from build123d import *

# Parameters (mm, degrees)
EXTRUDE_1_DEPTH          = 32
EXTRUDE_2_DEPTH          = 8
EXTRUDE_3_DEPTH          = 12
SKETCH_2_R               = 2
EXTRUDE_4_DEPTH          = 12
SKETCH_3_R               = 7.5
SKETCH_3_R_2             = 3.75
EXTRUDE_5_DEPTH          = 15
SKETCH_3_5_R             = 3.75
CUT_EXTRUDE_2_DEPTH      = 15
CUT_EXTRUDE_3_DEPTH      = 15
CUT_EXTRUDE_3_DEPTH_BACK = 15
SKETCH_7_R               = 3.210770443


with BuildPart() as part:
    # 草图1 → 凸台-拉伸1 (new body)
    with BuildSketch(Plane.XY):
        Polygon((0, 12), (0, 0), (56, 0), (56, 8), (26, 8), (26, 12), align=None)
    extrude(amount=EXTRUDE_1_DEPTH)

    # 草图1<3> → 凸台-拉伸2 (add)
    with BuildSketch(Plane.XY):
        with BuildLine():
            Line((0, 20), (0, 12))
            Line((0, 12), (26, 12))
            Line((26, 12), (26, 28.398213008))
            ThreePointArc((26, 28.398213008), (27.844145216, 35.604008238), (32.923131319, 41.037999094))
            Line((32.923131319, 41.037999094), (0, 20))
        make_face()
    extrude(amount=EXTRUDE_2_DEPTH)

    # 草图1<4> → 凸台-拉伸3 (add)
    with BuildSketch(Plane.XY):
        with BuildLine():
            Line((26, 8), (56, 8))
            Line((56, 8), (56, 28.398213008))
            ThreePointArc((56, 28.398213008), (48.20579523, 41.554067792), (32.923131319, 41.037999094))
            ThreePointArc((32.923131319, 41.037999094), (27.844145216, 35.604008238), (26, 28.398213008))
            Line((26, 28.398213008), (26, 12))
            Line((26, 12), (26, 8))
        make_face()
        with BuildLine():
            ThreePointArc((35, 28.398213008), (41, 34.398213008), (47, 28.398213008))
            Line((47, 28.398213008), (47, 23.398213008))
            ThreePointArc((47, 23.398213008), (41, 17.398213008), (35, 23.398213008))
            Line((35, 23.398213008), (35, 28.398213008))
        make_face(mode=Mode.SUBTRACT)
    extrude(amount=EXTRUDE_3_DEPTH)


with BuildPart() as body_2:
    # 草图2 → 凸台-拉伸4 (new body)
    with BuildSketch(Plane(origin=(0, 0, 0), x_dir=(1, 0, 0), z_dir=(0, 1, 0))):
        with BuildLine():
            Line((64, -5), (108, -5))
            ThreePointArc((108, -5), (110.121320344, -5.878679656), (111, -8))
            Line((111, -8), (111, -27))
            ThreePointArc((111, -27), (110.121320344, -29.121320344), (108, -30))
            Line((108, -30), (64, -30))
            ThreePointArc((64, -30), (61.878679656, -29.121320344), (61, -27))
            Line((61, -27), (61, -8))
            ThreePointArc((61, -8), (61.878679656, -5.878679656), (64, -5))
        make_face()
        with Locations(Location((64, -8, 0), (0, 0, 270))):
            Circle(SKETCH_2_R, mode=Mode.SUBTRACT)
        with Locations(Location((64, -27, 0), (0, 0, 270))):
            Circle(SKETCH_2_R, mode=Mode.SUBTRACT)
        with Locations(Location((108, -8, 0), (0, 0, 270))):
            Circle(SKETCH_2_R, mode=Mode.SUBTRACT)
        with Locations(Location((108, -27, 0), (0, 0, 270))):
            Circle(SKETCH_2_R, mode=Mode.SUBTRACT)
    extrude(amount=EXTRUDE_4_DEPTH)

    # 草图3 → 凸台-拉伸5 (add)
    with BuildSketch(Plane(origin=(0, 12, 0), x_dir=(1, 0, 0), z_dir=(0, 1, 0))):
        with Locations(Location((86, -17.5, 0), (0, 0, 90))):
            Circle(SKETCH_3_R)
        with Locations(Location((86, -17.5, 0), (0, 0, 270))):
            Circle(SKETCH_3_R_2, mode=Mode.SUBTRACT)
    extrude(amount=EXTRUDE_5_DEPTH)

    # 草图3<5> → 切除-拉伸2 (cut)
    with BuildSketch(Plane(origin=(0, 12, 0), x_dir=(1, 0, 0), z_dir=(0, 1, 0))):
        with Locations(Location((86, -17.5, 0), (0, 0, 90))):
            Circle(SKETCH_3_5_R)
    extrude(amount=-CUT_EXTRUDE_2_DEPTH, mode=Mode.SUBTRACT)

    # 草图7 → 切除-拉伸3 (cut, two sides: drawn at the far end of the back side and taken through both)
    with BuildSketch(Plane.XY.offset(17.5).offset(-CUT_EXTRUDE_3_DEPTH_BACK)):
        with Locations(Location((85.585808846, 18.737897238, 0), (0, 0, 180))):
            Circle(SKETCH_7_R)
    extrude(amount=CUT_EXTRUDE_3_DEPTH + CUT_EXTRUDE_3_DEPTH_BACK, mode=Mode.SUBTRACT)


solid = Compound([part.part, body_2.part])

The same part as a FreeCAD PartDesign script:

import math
import FreeCAD as App
import Part
import Sketcher

doc = App.newDocument("Part")
params = doc.addObject("Spreadsheet::Sheet", "Params")
for row, (alias, value) in enumerate([
    ("sketch1_width", "56 mm"),
    ("sketch1_width2", "30 mm"),
    ("sketch1_height", "12 mm"),
    ("sketch1_height2", "8 mm"),
    ("pad1_length", "32 mm"),
    ("sketch2_radius", "15 mm"),
    ("sketch2_width", "26 mm"),
    ("sketch2_height", "8 mm"),
    ("pad2_length", "8 mm"),
    ("sketch3_radius", "15 mm"),
    ("sketch3_radius2", "6 mm"),
    ("sketch3_height", "5 mm"),
    ("pad3_length", "12 mm"),
    ("sketch4_diameter", "4 mm"),
    ("sketch4_radius", "3 mm"),
    ("sketch4_width", "44 mm"),
    ("sketch4_height", "19 mm"),
    ("pad4_length", "12 mm"),
    ("sketch5_diameter", "15 mm"),
    ("sketch5_diameter2", "7.5 mm"),
    ("pad5_length", "15 mm"),
    ("sketch6_diameter", "7.5 mm"),
    ("pocket1_length", "15 mm"),
], start=1):
    params.set(f"A{row}", alias)
    params.set(f"B{row}", "=" + value)
    params.setAlias(f"B{row}", alias)

body = doc.addObject("PartDesign::Body", "Body")

# Sketch on XY plane
sketch1 = doc.addObject("Sketcher::SketchObject", "Sketch")
body.addObject(sketch1)
sketch1.AttachmentSupport = (doc.XY_Plane, [""])
sketch1.MapMode = "FlatFace"
sketch1.addGeometry([
    Part.LineSegment(App.Vector(0, 12, 0), App.Vector(0, 0, 0)),  # 0
    Part.LineSegment(App.Vector(0, 0, 0), App.Vector(56, 0, 0)),  # 1
    Part.LineSegment(App.Vector(56, 0, 0), App.Vector(56, 8, 0)),  # 2
    Part.LineSegment(App.Vector(56, 8, 0), App.Vector(26, 8, 0)),  # 3
    Part.LineSegment(App.Vector(26, 8, 0), App.Vector(26, 12, 0)),  # 4
    Part.LineSegment(App.Vector(26, 12, 0), App.Vector(0, 12, 0)),  # 5
], False)
sketch1.addConstraint([
    Sketcher.Constraint("Coincident", 0, 2, 1, 1),
    Sketcher.Constraint("Coincident", 1, 2, 2, 1),
    Sketcher.Constraint("Coincident", 2, 2, 3, 1),
    Sketcher.Constraint("Coincident", 3, 2, 4, 1),
    Sketcher.Constraint("Coincident", 4, 2, 5, 1),
    Sketcher.Constraint("Coincident", 5, 2, 0, 1),
    Sketcher.Constraint("Vertical", 0),
    Sketcher.Constraint("Horizontal", 1),
    Sketcher.Constraint("Vertical", 2),
    Sketcher.Constraint("Horizontal", 3),
    Sketcher.Constraint("Vertical", 4),
    Sketcher.Constraint("Horizontal", 5),
    Sketcher.Constraint("Coincident", 0, 2, -1, 1),
    Sketcher.Constraint("DistanceX", 1, 1, 1, 2, 56.0),
    Sketcher.Constraint("DistanceX", 3, 2, 3, 1, 30.0),
    Sketcher.Constraint("DistanceY", 0, 2, 0, 1, 12.0),
    Sketcher.Constraint("DistanceY", 2, 1, 2, 2, 8.0),
])
sketch1.setExpression("Constraints[13]", "Params.sketch1_width")
sketch1.setExpression("Constraints[14]", "Params.sketch1_width2")
sketch1.setExpression("Constraints[15]", "Params.sketch1_height")
sketch1.setExpression("Constraints[16]", "Params.sketch1_height2")
pad1 = doc.addObject("PartDesign::Pad", "Pad")
body.addObject(pad1)
pad1.Profile = sketch1
pad1.setExpression("Length", "Params.pad1_length")

# Sketch on XY plane
sketch2 = doc.addObject("Sketcher::SketchObject", "Sketch001")
body.addObject(sketch2)
sketch2.AttachmentSupport = (doc.XY_Plane, [""])
sketch2.MapMode = "FlatFace"
sketch2.addGeometry([
    Part.LineSegment(App.Vector(0, 20, 0), App.Vector(0, 12, 0)),  # 0
    Part.LineSegment(App.Vector(0, 12, 0), App.Vector(26, 12, 0)),  # 1
    Part.LineSegment(App.Vector(26, 12, 0), App.Vector(26, 28, 0)),  # 2
    Part.ArcOfCircle(Part.Circle(App.Vector(41, 28, 0), App.Vector(0, 0, 1), 15), math.radians(123), math.radians(180)),  # 3
    Part.LineSegment(App.Vector(33, 41, 0), App.Vector(0, 20, 0)),  # 4
], False)
sketch2.addConstraint([
    Sketcher.Constraint("Coincident", 0, 2, 1, 1),
    Sketcher.Constraint("Coincident", 1, 2, 2, 1),
    Sketcher.Constraint("Tangent", 2, 2, 3, 2),
    Sketcher.Constraint("Tangent", 3, 1, 4, 1),
    Sketcher.Constraint("Coincident", 4, 2, 0, 1),
    Sketcher.Constraint("Vertical", 0),
    Sketcher.Constraint("Horizontal", 1),
    Sketcher.Constraint("Vertical", 2),
    Sketcher.Constraint("PointOnObject", 0, 2, -2),
    Sketcher.Constraint("Radius", 3, 15.0),
    Sketcher.Constraint("DistanceX", 1, 1, 1, 2, 26.0),
    Sketcher.Constraint("DistanceY", 0, 2, 0, 1, 8.0),
    Sketcher.Constraint("DistanceY", -1, 1, 0, 2, 12.0),
    Sketcher.Constraint("DistanceY", -1, 1, 3, 1, 41.037999),
])
sketch2.setExpression("Constraints[9]", "Params.sketch2_radius")
sketch2.setExpression("Constraints[10]", "Params.sketch2_width")
sketch2.setExpression("Constraints[11]", "Params.sketch2_height")
pad2 = doc.addObject("PartDesign::Pad", "Pad001")
body.addObject(pad2)
pad2.Profile = sketch2
pad2.setExpression("Length", "Params.pad2_length")

# Sketch on XY plane
sketch3 = doc.addObject("Sketcher::SketchObject", "Sketch002")
body.addObject(sketch3)
sketch3.AttachmentSupport = (doc.XY_Plane, [""])
sketch3.MapMode = "FlatFace"
sketch3.addGeometry([
    Part.LineSegment(App.Vector(26, 8, 0), App.Vector(56, 8, 0)),  # 0
    Part.LineSegment(App.Vector(56, 8, 0), App.Vector(56, 28, 0)),  # 1
    Part.ArcOfCircle(Part.Circle(App.Vector(41, 28, 0), App.Vector(0, 0, 1), 15), math.radians(0), math.radians(123)),  # 2
    Part.ArcOfCircle(Part.Circle(App.Vector(41, 28, 0), App.Vector(0, 0, 1), 15), math.radians(123), math.radians(180)),  # 3
    Part.LineSegment(App.Vector(26, 28, 0), App.Vector(26, 8, 0)),  # 4
    Part.LineSegment(App.Vector(35, 23, 0), App.Vector(35, 28, 0)),  # 5
    Part.ArcOfCircle(Part.Circle(App.Vector(41, 28, 0), App.Vector(0, 0, 1), 6), math.radians(0), math.radians(180)),  # 6
    Part.LineSegment(App.Vector(47, 28, 0), App.Vector(47, 23, 0)),  # 7
    Part.ArcOfCircle(Part.Circle(App.Vector(41, 23, 0), App.Vector(0, 0, 1), 6), math.radians(180), math.radians(360)),  # 8
], False)
sketch3.addConstraint([
    Sketcher.Constraint("Coincident", 0, 2, 1, 1),
    Sketcher.Constraint("Tangent", 1, 2, 2, 1),
    Sketcher.Constraint("Tangent", 2, 2, 3, 1),
    Sketcher.Constraint("Tangent", 3, 2, 4, 1),
    Sketcher.Constraint("Coincident", 4, 2, 0, 1),
    Sketcher.Constraint("Tangent", 5, 2, 6, 2),
    Sketcher.Constraint("Tangent", 6, 1, 7, 1),
    Sketcher.Constraint("Tangent", 7, 2, 8, 2),
    Sketcher.Constraint("Tangent", 8, 1, 5, 1),
    Sketcher.Constraint("Horizontal", 0),
    Sketcher.Constraint("Vertical", 1),
    Sketcher.Constraint("Vertical", 4),
    Sketcher.Constraint("Vertical", 5),
    Sketcher.Constraint("Vertical", 7),
    Sketcher.Constraint("Coincident", 6, 3, 2, 3),
    Sketcher.Constraint("Equal", 2, 3),
    Sketcher.Constraint("Radius", 2, 15.0),
    Sketcher.Constraint("Radius", 6, 6.0),
    Sketcher.Constraint("DistanceY", 5, 1, 5, 2, 5.0),
    Sketcher.Constraint("DistanceX", -1, 1, 2, 3, 41.0),
    Sketcher.Constraint("DistanceY", -1, 1, 0, 2, 8.0),
    Sketcher.Constraint("DistanceY", -1, 1, 2, 2, 41.037999),
    Sketcher.Constraint("DistanceY", 1, 1, 1, 2, 20.398213),
])
sketch3.setExpression("Constraints[16]", "Params.sketch3_radius")
sketch3.setExpression("Constraints[17]", "Params.sketch3_radius2")
sketch3.setExpression("Constraints[18]", "Params.sketch3_height")
pad3 = doc.addObject("PartDesign::Pad", "Pad002")
body.addObject(pad3)
pad3.Profile = sketch3
pad3.setExpression("Length", "Params.pad3_length")
body2 = doc.addObject("PartDesign::Body", "Body001")

# Sketch on XZ plane
sketch4 = doc.addObject("Sketcher::SketchObject", "Sketch003")
body2.addObject(sketch4)
sketch4.AttachmentSupport = (doc.getObject("XZ_Plane001"), [""])
sketch4.MapMode = "FlatFace"
sketch4.addGeometry([
    Part.LineSegment(App.Vector(108, 5, 0), App.Vector(64, 5, 0)),  # 0
    Part.ArcOfCircle(Part.Circle(App.Vector(64, 8, 0), App.Vector(0, 0, 1), 3), math.radians(180), math.radians(270)),  # 1
    Part.LineSegment(App.Vector(61, 8, 0), App.Vector(61, 27, 0)),  # 2
    Part.ArcOfCircle(Part.Circle(App.Vector(64, 27, 0), App.Vector(0, 0, 1), 3), math.radians(90), math.radians(180)),  # 3
    Part.LineSegment(App.Vector(64, 30, 0), App.Vector(108, 30, 0)),  # 4
    Part.ArcOfCircle(Part.Circle(App.Vector(108, 27, 0), App.Vector(0, 0, 1), 3), math.radians(0), math.radians(90)),  # 5
    Part.LineSegment(App.Vector(111, 27, 0), App.Vector(111, 8, 0)),  # 6
    Part.ArcOfCircle(Part.Circle(App.Vector(108, 8, 0), App.Vector(0, 0, 1), 3), math.radians(-90), math.radians(0)),  # 7
    Part.Circle(App.Vector(108, 27, 0), App.Vector(0, 0, 1), 2),  # 8
    Part.Circle(App.Vector(64, 27, 0), App.Vector(0, 0, 1), 2),  # 9
    Part.Circle(App.Vector(108, 8, 0), App.Vector(0, 0, 1), 2),  # 10
    Part.Circle(App.Vector(64, 8, 0), App.Vector(0, 0, 1), 2),  # 11
], False)
sketch4.addConstraint([
    Sketcher.Constraint("Tangent", 0, 2, 1, 2),
    Sketcher.Constraint("Tangent", 1, 1, 2, 1),
    Sketcher.Constraint("Tangent", 2, 2, 3, 2),
    Sketcher.Constraint("Tangent", 3, 1, 4, 1),
    Sketcher.Constraint("Tangent", 4, 2, 5, 2),
    Sketcher.Constraint("Tangent", 5, 1, 6, 1),
    Sketcher.Constraint("Tangent", 6, 2, 7, 2),
    Sketcher.Constraint("Tangent", 7, 1, 0, 1),
    Sketcher.Constraint("Horizontal", 0),
    Sketcher.Constraint("Vertical", 2),
    Sketcher.Constraint("Horizontal", 4),
    Sketcher.Constraint("Vertical", 6),
    Sketcher.Constraint("Coincident", 8, 3, 5, 3),
    Sketcher.Constraint("Coincident", 9, 3, 3, 3),
    Sketcher.Constraint("Coincident", 10, 3, 7, 3),
    Sketcher.Constraint("Coincident", 11, 3, 1, 3),
    Sketcher.Constraint("Equal", 1, 3),
    Sketcher.Constraint("Equal", 3, 5),
    Sketcher.Constraint("Equal", 5, 7),
    Sketcher.Constraint("Equal", 8, 9),
    Sketcher.Constraint("Equal", 9, 10),
    Sketcher.Constraint("Equal", 10, 11),
    Sketcher.Constraint("Diameter", 8, 4.0),
    Sketcher.Constraint("Radius", 1, 3.0),
    Sketcher.Constraint("DistanceX", 0, 2, 0, 1, 44.0),
    Sketcher.Constraint("DistanceY", 2, 1, 2, 2, 19.0),
    Sketcher.Constraint("DistanceX", -1, 1, 1, 3, 64.0),
    Sketcher.Constraint("DistanceY", -1, 1, 1, 3, 8.0),
])
sketch4.setExpression("Constraints[22]", "Params.sketch4_diameter")
sketch4.setExpression("Constraints[23]", "Params.sketch4_radius")
sketch4.setExpression("Constraints[24]", "Params.sketch4_width")
sketch4.setExpression("Constraints[25]", "Params.sketch4_height")
pad4 = doc.addObject("PartDesign::Pad", "Pad003")
body2.addObject(pad4)
pad4.Profile = sketch4
pad4.setExpression("Length", "Params.pad4_length")
pad4.Reversed = True

# Sketch on XZ plane
sketch5 = doc.addObject("Sketcher::SketchObject", "Sketch004")
body2.addObject(sketch5)
sketch5.AttachmentSupport = (doc.getObject("XZ_Plane001"), [""])
sketch5.MapMode = "FlatFace"
sketch5.AttachmentOffset = App.Placement(App.Vector(0, 0, -12), App.Rotation())
sketch5.addGeometry([
    Part.Circle(App.Vector(86, 17.5, 0), App.Vector(0, 0, 1), 7.5),
    Part.Circle(App.Vector(86, 17.5, 0), App.Vector(0, 0, 1), 3.8),
], False)
sketch5.addConstraint([
    Sketcher.Constraint("Coincident", 1, 3, 0, 3),
    Sketcher.Constraint("Diameter", 0, 15.0),
    Sketcher.Constraint("Diameter", 1, 7.5),
    Sketcher.Constraint("DistanceX", -1, 1, 0, 3, 86.0),
    Sketcher.Constraint("DistanceY", -1, 1, 0, 3, 17.5),
])
sketch5.setExpression("Constraints[1]", "Params.sketch5_diameter")
sketch5.setExpression("Constraints[2]", "Params.sketch5_diameter2")
pad5 = doc.addObject("PartDesign::Pad", "Pad004")
body2.addObject(pad5)
pad5.Profile = sketch5
pad5.setExpression("Length", "Params.pad5_length")
pad5.Reversed = True

# Sketch on XZ plane
sketch6 = doc.addObject("Sketcher::SketchObject", "Sketch005")
body2.addObject(sketch6)
sketch6.AttachmentSupport = (doc.getObject("XZ_Plane001"), [""])
sketch6.MapMode = "FlatFace"
sketch6.AttachmentOffset = App.Placement(App.Vector(0, 0, -12), App.Rotation())
sketch6.addGeometry(Part.Circle(App.Vector(86, 17.5, 0), App.Vector(0, 0, 1), 3.8), False)
sketch6.addConstraint([
    Sketcher.Constraint("Diameter", 0, 7.5),
    Sketcher.Constraint("DistanceX", -1, 1, 0, 3, 86.0),
    Sketcher.Constraint("DistanceY", -1, 1, 0, 3, 17.5),
])
sketch6.setExpression("Constraints[0]", "Params.sketch6_diameter")
pocket1 = doc.addObject("PartDesign::Pocket", "Pocket")
body2.addObject(pocket1)
pocket1.Profile = sketch6
pocket1.setExpression("Length", "Params.pocket1_length")
pocket1.Reversed = True

# Sketch on XY plane
sketch7 = doc.addObject("Sketcher::SketchObject", "Sketch006")
body2.addObject(sketch7)
sketch7.AttachmentSupport = (doc.getObject("XY_Plane001"), [""])
sketch7.MapMode = "FlatFace"
sketch7.AttachmentOffset = App.Placement(App.Vector(0, 0, 17.5), App.Rotation())
sketch7.addGeometry(Part.Circle(App.Vector(85.6, 18.7, 0), App.Vector(0, 0, 1), 3.2), False)
sketch7.addConstraint([
    Sketcher.Constraint("Diameter", 0, 6.421541),
    Sketcher.Constraint("DistanceX", -1, 1, 0, 3, 85.585809),
    Sketcher.Constraint("DistanceY", -1, 1, 0, 3, 18.737897),
])
pocket2 = doc.addObject("PartDesign::Pocket", "Pocket001")
body2.addObject(pocket2)
pocket2.Profile = sketch7
pocket2.Type = "ThroughAll"
pocket2.Midplane = True

doc.recompute()
